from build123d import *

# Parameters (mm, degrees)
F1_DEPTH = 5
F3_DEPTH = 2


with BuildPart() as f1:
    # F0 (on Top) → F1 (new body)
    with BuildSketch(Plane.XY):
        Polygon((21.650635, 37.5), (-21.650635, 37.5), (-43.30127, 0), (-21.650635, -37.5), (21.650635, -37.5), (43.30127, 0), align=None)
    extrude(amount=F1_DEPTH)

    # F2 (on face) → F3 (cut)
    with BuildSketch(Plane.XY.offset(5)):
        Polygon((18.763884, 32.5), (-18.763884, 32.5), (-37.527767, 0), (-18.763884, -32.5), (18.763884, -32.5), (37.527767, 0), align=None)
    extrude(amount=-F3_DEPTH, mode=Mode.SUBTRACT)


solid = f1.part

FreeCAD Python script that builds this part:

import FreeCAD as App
import Part
import Sketcher
Q = App.Units.Quantity


def add_polygon(sketch, points):
    """Adds a closed chain of lines whose ends are joined by coincident constraints."""
    first, n = sketch.GeometryCount, len(points)
    for a, b in zip(points, points[1:] + points[:1]):
        sketch.addGeometry(Part.LineSegment(App.Vector(*a, 0), App.Vector(*b, 0)), False)
    for i in range(n):
        sketch.addConstraint(Sketcher.Constraint("Coincident", first + i, 2, first + (i + 1) % n, 1))

doc = App.newDocument("Part")
params = doc.addObject("Spreadsheet::Sheet", "Params")
for row, (alias, value) in enumerate([
    ("pad1_length", "5 mm"),
    ("pocket1_length", "2 mm"),
], start=1):
    params.set(f"A{row}", alias)
    params.set(f"B{row}", "=" + value)
    params.setAlias(f"B{row}", alias)

body = doc.addObject("PartDesign::Body", "Body")

sketch1 = doc.addObject("Sketcher::SketchObject", "Sketch")
body.addObject(sketch1)
sketch1.AttachmentSupport = (doc.XY_Plane, [""])
sketch1.MapMode = "FlatFace"
add_polygon(sketch1, [(22, 38), (-22, 38), (-43, 0), (-22, -38), (22, -38), (43, 0)])
sketch1.addConstraint(Sketcher.Constraint("Horizontal", 0))
sketch1.addConstraint(Sketcher.Constraint("Horizontal", 3))
sketch1.addConstraint(Sketcher.Constraint("Symmetric", 0, 2, 3, 2, -1, 1))
sketch1.addConstraint(Sketcher.Constraint("Symmetric", 1, 2, 4, 2, -1, 1))
sketch1.addConstraint(Sketcher.Constraint("PointOnObject", 1, 2, -1))
sketch1.addConstraint(Sketcher.Constraint("Parallel", 2, 5))
sketch1.addConstraint(Sketcher.Constraint("Vertical", 0, 2, 2, 2))
sketch1.addConstraint(Sketcher.Constraint("Angle", 1, Q("-120 deg")))
sketch1.addConstraint(Sketcher.Constraint("DistanceY", 2, 2, 0, 2, Q("75 mm")))
sketch1.addConstraint(Sketcher.Constraint("DistanceX", 0, 2, 0, 1, Q("43.30127 mm")))
pad1 = doc.addObject("PartDesign::Pad", "Pad")
body.addObject(pad1)
pad1.Profile = sketch1
pad1.setExpression("Length", "Params.pad1_length")

sketch2 = doc.addObject("Sketcher::SketchObject", "Sketch001")
body.addObject(sketch2)
sketch2.AttachmentSupport = (doc.XY_Plane, [""])
sketch2.MapMode = "FlatFace"
sketch2.AttachmentOffset = App.Placement(App.Vector(0, 0, 5), App.Rotation())
add_polygon(sketch2, [(19, 32), (-19, 32), (-38, 0), (-19, -32), (19, -32), (38, 0)])
sketch2.addConstraint(Sketcher.Constraint("Horizontal", 0))
sketch2.addConstraint(Sketcher.Constraint("Horizontal", 3))
sketch2.addConstraint(Sketcher.Constraint("Symmetric", 0, 2, 3, 2, -1, 1))
sketch2.addConstraint(Sketcher.Constraint("Symmetric", 1, 2, 4, 2, -1, 1))
sketch2.addConstraint(Sketcher.Constraint("PointOnObject", 1, 2, -1))
sketch2.addConstraint(Sketcher.Constraint("Parallel", 2, 5))
sketch2.addConstraint(Sketcher.Constraint("Vertical", 0, 2, 2, 2))
sketch2.addConstraint(Sketcher.Constraint("Angle", 1, Q("-119.999999 deg")))
sketch2.addConstraint(Sketcher.Constraint("DistanceY", 2, 2, 0, 2, Q("65 mm")))
sketch2.addConstraint(Sketcher.Constraint("DistanceX", 0, 2, 0, 1, Q("37.527768 mm")))
pocket1 = doc.addObject("PartDesign::Pocket", "Pocket")
body.addObject(pocket1)
pocket1.Profile = sketch2
pocket1.setExpression("Length", "Params.pocket1_length")

doc.recompute()
